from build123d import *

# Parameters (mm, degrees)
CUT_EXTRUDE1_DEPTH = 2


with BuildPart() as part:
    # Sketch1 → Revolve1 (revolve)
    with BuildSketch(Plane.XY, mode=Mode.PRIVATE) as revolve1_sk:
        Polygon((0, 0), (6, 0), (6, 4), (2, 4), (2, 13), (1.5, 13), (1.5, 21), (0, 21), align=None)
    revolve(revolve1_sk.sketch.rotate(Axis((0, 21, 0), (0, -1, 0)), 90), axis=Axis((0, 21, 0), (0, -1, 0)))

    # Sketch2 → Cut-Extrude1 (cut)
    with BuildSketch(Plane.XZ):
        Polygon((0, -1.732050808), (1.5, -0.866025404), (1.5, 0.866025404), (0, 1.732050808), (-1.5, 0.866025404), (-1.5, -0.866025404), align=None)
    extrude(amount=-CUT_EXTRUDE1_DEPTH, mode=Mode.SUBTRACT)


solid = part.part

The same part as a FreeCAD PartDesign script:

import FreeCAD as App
import Part
import Sketcher
from FreeCAD import Vector
Q = App.Units.Quantity

doc = App.newDocument("Part")
params = doc.addObject("Spreadsheet::Sheet", "Params")
for row, (alias, value) in enumerate([
    ("sketch1_width", "6 mm"),
    ("sketch1_width2", "4 mm"),
    ("sketch1_height", "9 mm"),
    ("sketch1_height2", "8 mm"),
    ("sketch1_width3", "0.5 mm"),
    ("revolution_angle", "360 deg"),
    ("pocket1_length", "2 mm"),
], start=1):
    params.set(f"A{row}", alias)
    params.set(f"B{row}", "=" + value)
    params.setAlias(f"B{row}", alias)

body = doc.addObject("PartDesign::Body", "Body")

sketch1 = body.newObject("Sketcher::SketchObject", "Sketch")
sketch1.AttachmentSupport = (doc.getObject("XY_Plane"), [""])
sketch1.MapMode = "FlatFace"
sketch1.addGeometry(Part.LineSegment(Vector(0, 0, 0), Vector(6, 0, 0)), False)
sketch1.addGeometry(Part.LineSegment(Vector(6, 0, 0), Vector(6, 4, 0)), False)
sketch1.addGeometry(Part.LineSegment(Vector(6, 4, 0), Vector(2, 4, 0)), False)
sketch1.addGeometry(Part.LineSegment(Vector(2, 4, 0), Vector(2, 13, 0)), False)
sketch1.addGeometry(Part.LineSegment(Vector(2, 13, 0), Vector(1.5, 13, 0)), False)
sketch1.addGeometry(Part.LineSegment(Vector(1.5, 13, 0), Vector(1.5, 21, 0)), False)
sketch1.addGeometry(Part.LineSegment(Vector(1.5, 21, 0), Vector(0, 21, 0)), False)
sketch1.addGeometry(Part.LineSegment(Vector(0, 21, 0), Vector(0, 0, 0)), False)
sketch1.addConstraint(Sketcher.Constraint("Coincident", 0, 2, 1, 1))
sketch1.addConstraint(Sketcher.Constraint("Coincident", 1, 2, 2, 1))
sketch1.addConstraint(Sketcher.Constraint("Coincident", 2, 2, 3, 1))
sketch1.addConstraint(Sketcher.Constraint("Coincident", 3, 2, 4, 1))
sketch1.addConstraint(Sketcher.Constraint("Coincident", 4, 2, 5, 1))
sketch1.addConstraint(Sketcher.Constraint("Coincident", 5, 2, 6, 1))
sketch1.addConstraint(Sketcher.Constraint("Coincident", 6, 2, 7, 1))
sketch1.addConstraint(Sketcher.Constraint("Coincident", 7, 2, 0, 1))
sketch1.addConstraint(Sketcher.Constraint("Horizontal", 0))
sketch1.addConstraint(Sketcher.Constraint("Vertical", 1))
sketch1.addConstraint(Sketcher.Constraint("Horizontal", 2))
sketch1.addConstraint(Sketcher.Constraint("Vertical", 3))
sketch1.addConstraint(Sketcher.Constraint("Horizontal", 4))
sketch1.addConstraint(Sketcher.Constraint("Vertical", 5))
sketch1.addConstraint(Sketcher.Constraint("Horizontal", 6))
sketch1.addConstraint(Sketcher.Constraint("Vertical", 7))
sketch1.addConstraint(Sketcher.Constraint("Coincident", 7, 2, -1, 1))
sketch1.addConstraint(Sketcher.Constraint("Equal", 2, 1))
sketch1.addConstraint(Sketcher.Constraint("DistanceX", 0, 1, 0, 2, Q("6 mm")))
sketch1.addConstraint(Sketcher.Constraint("DistanceX", 2, 2, 2, 1, Q("4 mm")))
sketch1.addConstraint(Sketcher.Constraint("DistanceY", 3, 1, 3, 2, Q("9 mm")))
sketch1.addConstraint(Sketcher.Constraint("DistanceY", 5, 1, 5, 2, Q("8 mm")))
sketch1.addConstraint(Sketcher.Constraint("DistanceX", 4, 2, 4, 1, Q("0.5 mm")))
sketch1.setExpression("Constraints[18]", "Params.sketch1_width")
sketch1.setExpression("Constraints[19]", "Params.sketch1_width2")
sketch1.setExpression("Constraints[20]", "Params.sketch1_height")
sketch1.setExpression("Constraints[21]", "Params.sketch1_height2")
sketch1.setExpression("Constraints[22]", "Params.sketch1_width3")
revolution = body.newObject("PartDesign::Revolution", "Revolution")
revolution.Profile = sketch1
revolution.ReferenceAxis = (sketch1, ["V_Axis"])
revolution.setExpression("Angle", "Params.revolution_angle")

sketch2 = body.newObject("Sketcher::SketchObject", "Sketch001")
sketch2.AttachmentSupport = (doc.getObject("XZ_Plane"), [""])
sketch2.MapMode = "FlatFace"
sketch2.addGeometry(Part.LineSegment(Vector(0, -1.732051, 0), Vector(1.5, -0.866025, 0)), False)
sketch2.addGeometry(Part.LineSegment(Vector(1.5, -0.866025, 0), Vector(1.5, 0.866025, 0)), False)
sketch2.addGeometry(Part.LineSegment(Vector(1.5, 0.866025, 0), Vector(0, 1.732051, 0)), False)
sketch2.addGeometry(Part.LineSegment(Vector(0, 1.732051, 0), Vector(-1.5, 0.866025, 0)), False)
sketch2.addGeometry(Part.LineSegment(Vector(-1.5, 0.866025, 0), Vector(-1.5, -0.866025, 0)), False)
sketch2.addGeometry(Part.LineSegment(Vector(-1.5, -0.866025, 0), Vector(0, -1.732051, 0)), False)
sketch2.addConstraint(Sketcher.Constraint("Coincident", 0, 2, 1, 1))
sketch2.addConstraint(Sketcher.Constraint("Coincident", 1, 2, 2, 1))
sketch2.addConstraint(Sketcher.Constraint("Coincident", 2, 2, 3, 1))
sketch2.addConstraint(Sketcher.Constraint("Coincident", 3, 2, 4, 1))
sketch2.addConstraint(Sketcher.Constraint("Coincident", 4, 2, 5, 1))
sketch2.addConstraint(Sketcher.Constraint("Coincident", 5, 2, 0, 1))
sketch2.addConstraint(Sketcher.Constraint("Vertical", 1))
sketch2.addConstraint(Sketcher.Constraint("Vertical", 4))
sketch2.addConstraint(Sketcher.Constraint("Symmetric", 0, 2, 3, 2, -1, 1))
sketch2.addConstraint(Sketcher.Constraint("Symmetric", 2, 2, 5, 2, -1, 1))
sketch2.addConstraint(Sketcher.Constraint("PointOnObject", 2, 2, -2))
sketch2.addConstraint(Sketcher.Constraint("Parallel", 2, 5))
sketch2.addConstraint(Sketcher.Constraint("Horizontal", 1, 2, 3, 2))
sketch2.addConstraint(Sketcher.Constraint("Angle", 0, Q("30 deg")))
sketch2.addConstraint(Sketcher.Constraint("DistanceX", 3, 2, 1, 2, Q("3 mm")))
sketch2.addConstraint(Sketcher.Constraint("DistanceY", 1, 1, 1, 2, Q("1.732051 mm")))
pocket1 = body.newObject("PartDesign::Pocket", "Pocket")
pocket1.Profile = sketch2
pocket1.setExpression("Length", "Params.pocket1_length")

doc.recompute()
